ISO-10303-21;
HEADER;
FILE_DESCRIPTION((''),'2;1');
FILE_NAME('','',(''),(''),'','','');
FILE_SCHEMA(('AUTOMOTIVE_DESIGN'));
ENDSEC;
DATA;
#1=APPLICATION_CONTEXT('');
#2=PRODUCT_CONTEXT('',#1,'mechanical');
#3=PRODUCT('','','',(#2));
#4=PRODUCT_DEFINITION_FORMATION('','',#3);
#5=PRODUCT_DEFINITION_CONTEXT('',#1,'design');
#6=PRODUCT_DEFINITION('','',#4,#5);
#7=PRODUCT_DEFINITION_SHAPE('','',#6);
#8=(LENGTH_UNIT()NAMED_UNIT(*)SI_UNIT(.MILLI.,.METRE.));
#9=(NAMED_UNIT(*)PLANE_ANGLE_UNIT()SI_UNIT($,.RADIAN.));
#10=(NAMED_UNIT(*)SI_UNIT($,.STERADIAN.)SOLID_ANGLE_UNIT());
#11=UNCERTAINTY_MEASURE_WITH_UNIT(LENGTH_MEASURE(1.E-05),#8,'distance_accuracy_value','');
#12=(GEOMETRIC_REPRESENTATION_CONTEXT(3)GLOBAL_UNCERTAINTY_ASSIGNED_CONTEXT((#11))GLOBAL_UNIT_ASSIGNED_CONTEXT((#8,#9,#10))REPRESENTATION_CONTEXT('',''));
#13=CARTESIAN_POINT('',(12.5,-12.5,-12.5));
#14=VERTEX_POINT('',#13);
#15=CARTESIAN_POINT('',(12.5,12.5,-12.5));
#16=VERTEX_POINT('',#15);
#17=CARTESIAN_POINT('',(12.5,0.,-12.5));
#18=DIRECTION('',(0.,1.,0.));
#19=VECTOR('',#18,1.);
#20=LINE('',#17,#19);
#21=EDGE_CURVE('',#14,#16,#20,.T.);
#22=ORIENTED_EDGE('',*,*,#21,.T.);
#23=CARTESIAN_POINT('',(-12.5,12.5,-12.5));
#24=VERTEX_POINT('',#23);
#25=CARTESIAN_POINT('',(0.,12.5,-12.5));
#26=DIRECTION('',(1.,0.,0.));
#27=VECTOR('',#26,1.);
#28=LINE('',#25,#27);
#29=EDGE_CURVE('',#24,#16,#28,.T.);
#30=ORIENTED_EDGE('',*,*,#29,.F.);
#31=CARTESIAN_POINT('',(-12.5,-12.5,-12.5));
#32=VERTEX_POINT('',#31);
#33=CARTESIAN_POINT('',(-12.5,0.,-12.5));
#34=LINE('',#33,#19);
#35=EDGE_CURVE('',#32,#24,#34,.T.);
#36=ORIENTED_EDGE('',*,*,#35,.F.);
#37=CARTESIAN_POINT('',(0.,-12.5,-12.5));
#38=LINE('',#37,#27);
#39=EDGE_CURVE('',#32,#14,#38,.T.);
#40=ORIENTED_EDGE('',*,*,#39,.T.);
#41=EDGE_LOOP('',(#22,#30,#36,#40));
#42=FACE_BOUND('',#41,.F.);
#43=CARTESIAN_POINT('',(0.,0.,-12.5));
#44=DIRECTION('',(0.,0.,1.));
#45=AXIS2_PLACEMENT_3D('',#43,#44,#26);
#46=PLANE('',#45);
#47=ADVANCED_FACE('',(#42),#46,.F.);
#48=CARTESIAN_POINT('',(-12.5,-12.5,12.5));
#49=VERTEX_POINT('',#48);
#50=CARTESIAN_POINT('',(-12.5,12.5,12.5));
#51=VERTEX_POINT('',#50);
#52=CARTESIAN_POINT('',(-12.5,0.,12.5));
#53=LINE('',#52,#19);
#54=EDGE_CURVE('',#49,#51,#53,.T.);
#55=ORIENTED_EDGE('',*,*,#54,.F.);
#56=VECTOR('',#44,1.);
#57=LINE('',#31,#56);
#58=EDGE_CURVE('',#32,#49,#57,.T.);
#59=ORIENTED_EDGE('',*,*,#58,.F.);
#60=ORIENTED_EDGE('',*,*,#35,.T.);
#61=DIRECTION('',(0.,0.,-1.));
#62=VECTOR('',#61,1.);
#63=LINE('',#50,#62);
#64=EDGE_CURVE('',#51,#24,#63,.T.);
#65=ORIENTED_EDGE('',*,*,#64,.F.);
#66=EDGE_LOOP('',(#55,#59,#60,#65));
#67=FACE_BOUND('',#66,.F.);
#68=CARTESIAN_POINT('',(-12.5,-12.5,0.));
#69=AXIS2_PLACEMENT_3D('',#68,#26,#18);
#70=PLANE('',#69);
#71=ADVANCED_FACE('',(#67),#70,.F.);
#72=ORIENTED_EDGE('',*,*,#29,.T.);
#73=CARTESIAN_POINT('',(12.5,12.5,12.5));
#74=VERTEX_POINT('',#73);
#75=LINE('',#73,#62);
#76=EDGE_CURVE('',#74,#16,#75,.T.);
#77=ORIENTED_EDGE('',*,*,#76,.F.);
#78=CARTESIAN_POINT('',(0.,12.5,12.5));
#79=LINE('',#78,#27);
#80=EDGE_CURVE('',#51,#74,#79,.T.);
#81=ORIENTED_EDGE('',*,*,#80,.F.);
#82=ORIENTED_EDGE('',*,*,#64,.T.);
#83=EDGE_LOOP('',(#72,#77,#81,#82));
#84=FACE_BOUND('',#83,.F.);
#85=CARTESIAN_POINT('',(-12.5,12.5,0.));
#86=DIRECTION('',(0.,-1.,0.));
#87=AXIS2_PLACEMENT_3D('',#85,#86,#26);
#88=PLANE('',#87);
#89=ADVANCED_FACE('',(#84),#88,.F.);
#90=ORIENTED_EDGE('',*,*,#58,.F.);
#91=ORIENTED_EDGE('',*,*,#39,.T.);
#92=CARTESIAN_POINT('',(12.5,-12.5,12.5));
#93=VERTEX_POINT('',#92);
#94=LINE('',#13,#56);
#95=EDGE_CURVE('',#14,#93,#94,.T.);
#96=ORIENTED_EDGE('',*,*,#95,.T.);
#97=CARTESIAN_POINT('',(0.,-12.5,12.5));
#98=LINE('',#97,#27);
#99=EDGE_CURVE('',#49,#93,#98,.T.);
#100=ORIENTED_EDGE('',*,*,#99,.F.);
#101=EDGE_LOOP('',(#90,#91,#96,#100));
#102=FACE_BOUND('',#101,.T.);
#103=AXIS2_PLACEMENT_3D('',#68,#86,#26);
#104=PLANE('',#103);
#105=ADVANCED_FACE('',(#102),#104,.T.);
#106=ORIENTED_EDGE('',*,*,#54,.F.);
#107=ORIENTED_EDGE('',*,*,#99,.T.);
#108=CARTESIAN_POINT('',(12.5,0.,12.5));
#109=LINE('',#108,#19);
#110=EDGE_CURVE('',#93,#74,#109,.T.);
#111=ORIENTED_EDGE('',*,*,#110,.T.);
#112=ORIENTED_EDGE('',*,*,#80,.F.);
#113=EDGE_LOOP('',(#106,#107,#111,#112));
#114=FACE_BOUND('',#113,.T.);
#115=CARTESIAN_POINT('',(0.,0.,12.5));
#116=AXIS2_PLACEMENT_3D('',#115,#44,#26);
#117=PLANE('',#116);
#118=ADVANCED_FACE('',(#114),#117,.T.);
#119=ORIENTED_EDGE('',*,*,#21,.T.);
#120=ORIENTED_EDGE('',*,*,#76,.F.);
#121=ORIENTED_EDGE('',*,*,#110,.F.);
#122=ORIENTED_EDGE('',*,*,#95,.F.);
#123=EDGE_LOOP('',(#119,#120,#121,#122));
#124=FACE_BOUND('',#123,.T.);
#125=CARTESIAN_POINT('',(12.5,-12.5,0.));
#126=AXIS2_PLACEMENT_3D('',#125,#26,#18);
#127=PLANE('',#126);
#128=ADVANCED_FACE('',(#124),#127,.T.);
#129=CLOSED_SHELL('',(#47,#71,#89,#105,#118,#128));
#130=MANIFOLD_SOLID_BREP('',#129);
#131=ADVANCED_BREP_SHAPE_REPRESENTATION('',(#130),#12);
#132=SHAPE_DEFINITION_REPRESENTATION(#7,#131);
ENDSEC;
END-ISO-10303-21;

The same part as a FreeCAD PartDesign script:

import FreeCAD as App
import Part
import Sketcher
from FreeCAD import Vector

doc = App.newDocument("Part")
body = doc.addObject("PartDesign::Body", "Body")

# Sketch on XY plane
sketch1 = body.newObject("Sketcher::SketchObject", "Sketch")
sketch1.AttachmentSupport = (doc.getObject("XY_Plane"), [""])
sketch1.MapMode = "FlatFace"
sketch1.addGeometry([
    Part.LineSegment(Vector(-12, 12, 0), Vector(-12, -12, 0)),
    Part.LineSegment(Vector(-12, -12, 0), Vector(12, -12, 0)),
    Part.LineSegment(Vector(12, -12, 0), Vector(12, 12, 0)),
    Part.LineSegment(Vector(12, 12, 0), Vector(-12, 12, 0)),
], False)
sketch1.addConstraint([
    Sketcher.Constraint("Coincident", 0, 2, 1, 1),
    Sketcher.Constraint("Coincident", 1, 2, 2, 1),
    Sketcher.Constraint("Coincident", 2, 2, 3, 1),
    Sketcher.Constraint("Coincident", 3, 2, 0, 1),
    Sketcher.Constraint("Vertical", 0),
    Sketcher.Constraint("Horizontal", 1),
    Sketcher.Constraint("Vertical", 2),
    Sketcher.Constraint("Horizontal", 3),
    Sketcher.Constraint("Symmetric", 0, 2, 2, 2, -1, 1),
    Sketcher.Constraint("Equal", 3, 0),
    Sketcher.Constraint("DistanceX", 1, 1, 1, 2, 25.0),
])
pad1 = body.newObject("PartDesign::Pad", "Pad")
pad1.Profile = sketch1
pad1.Length = 25
pad1.Midplane = True

doc.recompute()
